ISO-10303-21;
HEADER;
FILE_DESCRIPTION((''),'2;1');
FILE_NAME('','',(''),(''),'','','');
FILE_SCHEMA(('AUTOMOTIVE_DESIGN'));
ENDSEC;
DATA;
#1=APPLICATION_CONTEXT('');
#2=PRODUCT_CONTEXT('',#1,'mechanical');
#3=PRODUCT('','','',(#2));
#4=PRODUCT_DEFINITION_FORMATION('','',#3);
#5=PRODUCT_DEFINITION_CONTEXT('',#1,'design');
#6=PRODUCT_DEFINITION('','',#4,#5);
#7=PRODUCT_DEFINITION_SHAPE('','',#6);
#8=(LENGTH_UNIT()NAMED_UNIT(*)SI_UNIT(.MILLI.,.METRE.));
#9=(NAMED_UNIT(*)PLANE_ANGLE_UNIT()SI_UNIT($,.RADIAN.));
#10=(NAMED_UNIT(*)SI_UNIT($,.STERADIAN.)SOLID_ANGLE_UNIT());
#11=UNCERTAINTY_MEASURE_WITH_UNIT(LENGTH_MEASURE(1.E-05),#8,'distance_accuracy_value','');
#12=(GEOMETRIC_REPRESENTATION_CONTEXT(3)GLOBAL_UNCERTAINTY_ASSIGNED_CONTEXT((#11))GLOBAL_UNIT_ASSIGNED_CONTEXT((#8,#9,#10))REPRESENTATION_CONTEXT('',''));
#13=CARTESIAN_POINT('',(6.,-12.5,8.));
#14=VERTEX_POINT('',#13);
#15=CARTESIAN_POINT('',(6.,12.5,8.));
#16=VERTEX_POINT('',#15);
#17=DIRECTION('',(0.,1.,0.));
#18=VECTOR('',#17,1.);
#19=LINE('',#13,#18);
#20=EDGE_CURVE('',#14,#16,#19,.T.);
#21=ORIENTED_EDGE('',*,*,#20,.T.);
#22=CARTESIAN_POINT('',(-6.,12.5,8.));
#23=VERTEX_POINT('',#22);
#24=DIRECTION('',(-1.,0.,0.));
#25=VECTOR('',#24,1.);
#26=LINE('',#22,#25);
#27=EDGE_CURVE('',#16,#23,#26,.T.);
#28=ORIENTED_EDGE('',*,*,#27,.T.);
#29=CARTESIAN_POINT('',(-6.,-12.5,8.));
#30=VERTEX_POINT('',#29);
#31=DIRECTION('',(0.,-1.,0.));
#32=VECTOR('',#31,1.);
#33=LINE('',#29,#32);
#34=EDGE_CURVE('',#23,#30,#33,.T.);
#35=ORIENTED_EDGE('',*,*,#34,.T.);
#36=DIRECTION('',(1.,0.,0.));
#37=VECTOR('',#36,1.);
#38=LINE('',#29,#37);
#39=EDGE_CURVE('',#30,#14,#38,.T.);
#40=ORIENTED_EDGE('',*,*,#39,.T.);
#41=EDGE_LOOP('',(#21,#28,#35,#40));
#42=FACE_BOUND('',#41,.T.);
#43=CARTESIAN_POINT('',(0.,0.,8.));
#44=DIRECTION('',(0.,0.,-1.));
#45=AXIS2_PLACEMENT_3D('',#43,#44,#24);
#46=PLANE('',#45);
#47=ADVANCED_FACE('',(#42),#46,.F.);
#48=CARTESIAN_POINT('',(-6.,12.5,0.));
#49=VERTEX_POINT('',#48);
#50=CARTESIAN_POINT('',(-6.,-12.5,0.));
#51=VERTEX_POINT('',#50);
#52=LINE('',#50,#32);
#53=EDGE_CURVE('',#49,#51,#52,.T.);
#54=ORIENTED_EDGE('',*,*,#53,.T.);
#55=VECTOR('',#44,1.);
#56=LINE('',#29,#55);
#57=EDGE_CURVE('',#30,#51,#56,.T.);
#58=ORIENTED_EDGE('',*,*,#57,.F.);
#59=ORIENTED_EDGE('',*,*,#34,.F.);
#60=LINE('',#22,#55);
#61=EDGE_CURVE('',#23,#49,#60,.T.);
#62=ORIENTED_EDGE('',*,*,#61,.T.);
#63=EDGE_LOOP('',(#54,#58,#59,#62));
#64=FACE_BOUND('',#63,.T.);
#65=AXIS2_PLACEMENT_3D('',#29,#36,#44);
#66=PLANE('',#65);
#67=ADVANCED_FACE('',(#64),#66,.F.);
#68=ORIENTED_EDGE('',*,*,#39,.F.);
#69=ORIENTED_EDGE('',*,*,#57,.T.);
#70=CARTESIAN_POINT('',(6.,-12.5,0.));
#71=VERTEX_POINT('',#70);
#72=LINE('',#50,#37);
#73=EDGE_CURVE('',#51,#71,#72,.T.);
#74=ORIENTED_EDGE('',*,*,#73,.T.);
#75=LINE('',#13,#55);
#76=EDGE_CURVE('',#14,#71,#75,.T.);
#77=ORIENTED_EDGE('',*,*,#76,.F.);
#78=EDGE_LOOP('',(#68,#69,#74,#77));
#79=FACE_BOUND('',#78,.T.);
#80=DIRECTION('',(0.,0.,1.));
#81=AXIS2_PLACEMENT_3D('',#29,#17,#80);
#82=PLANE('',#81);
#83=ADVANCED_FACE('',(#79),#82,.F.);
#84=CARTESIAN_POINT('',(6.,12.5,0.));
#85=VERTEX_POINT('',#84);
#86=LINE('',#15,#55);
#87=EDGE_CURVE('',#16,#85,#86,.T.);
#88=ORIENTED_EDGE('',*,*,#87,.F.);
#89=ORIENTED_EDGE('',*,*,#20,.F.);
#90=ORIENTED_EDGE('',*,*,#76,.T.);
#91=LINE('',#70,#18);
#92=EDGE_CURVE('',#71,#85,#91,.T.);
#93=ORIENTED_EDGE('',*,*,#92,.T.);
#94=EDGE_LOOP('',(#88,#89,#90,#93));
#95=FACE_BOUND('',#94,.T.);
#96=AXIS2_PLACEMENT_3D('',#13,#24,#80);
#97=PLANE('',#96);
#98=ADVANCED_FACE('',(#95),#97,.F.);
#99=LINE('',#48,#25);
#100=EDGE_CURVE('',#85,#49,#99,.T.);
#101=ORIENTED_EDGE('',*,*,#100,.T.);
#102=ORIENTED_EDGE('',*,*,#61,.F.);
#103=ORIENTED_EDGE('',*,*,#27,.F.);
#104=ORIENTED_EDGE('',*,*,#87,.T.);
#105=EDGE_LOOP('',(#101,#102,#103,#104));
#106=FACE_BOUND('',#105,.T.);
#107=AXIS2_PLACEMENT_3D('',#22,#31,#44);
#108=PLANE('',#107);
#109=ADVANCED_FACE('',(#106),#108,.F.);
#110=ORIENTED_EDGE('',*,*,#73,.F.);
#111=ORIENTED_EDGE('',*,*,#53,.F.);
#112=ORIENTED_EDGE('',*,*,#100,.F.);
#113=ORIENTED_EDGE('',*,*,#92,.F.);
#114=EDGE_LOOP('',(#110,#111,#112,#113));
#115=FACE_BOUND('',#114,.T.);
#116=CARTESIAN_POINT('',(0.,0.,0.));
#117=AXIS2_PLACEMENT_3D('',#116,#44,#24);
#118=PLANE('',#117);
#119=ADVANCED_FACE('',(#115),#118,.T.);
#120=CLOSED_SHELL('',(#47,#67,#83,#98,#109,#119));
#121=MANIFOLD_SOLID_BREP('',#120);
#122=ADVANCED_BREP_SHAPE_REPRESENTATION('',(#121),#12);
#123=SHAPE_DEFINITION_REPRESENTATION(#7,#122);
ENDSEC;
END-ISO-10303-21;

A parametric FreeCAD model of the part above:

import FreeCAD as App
import Part
import Sketcher
from FreeCAD import Vector
Q = App.Units.Quantity

doc = App.newDocument("Part")
body = doc.addObject("PartDesign::Body", "Body")

# Sketch on XY plane
sketch1 = body.newObject("Sketcher::SketchObject", "Sketch")
sketch1.AttachmentSupport = (doc.getObject("XY_Plane"), [""])
sketch1.MapMode = "FlatFace"
sketch1.addGeometry([
    Part.LineSegment(Vector(-6, 12, 0), Vector(-6, -12, 0)),
    Part.LineSegment(Vector(-6, -12, 0), Vector(6, -12, 0)),
    Part.LineSegment(Vector(6, -12, 0), Vector(6, 12, 0)),
    Part.LineSegment(Vector(6, 12, 0), Vector(-6, 12, 0)),
], False)
sketch1.addConstraint([
    Sketcher.Constraint("Coincident", 0, 2, 1, 1),
    Sketcher.Constraint("Coincident", 1, 2, 2, 1),
    Sketcher.Constraint("Coincident", 2, 2, 3, 1),
    Sketcher.Constraint("Coincident", 3, 2, 0, 1),
    Sketcher.Constraint("Vertical", 0),
    Sketcher.Constraint("Horizontal", 1),
    Sketcher.Constraint("Vertical", 2),
    Sketcher.Constraint("Horizontal", 3),
    Sketcher.Constraint("Symmetric", 0, 2, 2, 2, -1, 1),
    Sketcher.Constraint("DistanceX", 1, 1, 1, 2, Q("12 mm")),
    Sketcher.Constraint("DistanceY", 0, 2, 0, 1, Q("25 mm")),
])
pad1 = body.newObject("PartDesign::Pad", "Pad")
pad1.Profile = sketch1
pad1.Length = 8

doc.recompute()
